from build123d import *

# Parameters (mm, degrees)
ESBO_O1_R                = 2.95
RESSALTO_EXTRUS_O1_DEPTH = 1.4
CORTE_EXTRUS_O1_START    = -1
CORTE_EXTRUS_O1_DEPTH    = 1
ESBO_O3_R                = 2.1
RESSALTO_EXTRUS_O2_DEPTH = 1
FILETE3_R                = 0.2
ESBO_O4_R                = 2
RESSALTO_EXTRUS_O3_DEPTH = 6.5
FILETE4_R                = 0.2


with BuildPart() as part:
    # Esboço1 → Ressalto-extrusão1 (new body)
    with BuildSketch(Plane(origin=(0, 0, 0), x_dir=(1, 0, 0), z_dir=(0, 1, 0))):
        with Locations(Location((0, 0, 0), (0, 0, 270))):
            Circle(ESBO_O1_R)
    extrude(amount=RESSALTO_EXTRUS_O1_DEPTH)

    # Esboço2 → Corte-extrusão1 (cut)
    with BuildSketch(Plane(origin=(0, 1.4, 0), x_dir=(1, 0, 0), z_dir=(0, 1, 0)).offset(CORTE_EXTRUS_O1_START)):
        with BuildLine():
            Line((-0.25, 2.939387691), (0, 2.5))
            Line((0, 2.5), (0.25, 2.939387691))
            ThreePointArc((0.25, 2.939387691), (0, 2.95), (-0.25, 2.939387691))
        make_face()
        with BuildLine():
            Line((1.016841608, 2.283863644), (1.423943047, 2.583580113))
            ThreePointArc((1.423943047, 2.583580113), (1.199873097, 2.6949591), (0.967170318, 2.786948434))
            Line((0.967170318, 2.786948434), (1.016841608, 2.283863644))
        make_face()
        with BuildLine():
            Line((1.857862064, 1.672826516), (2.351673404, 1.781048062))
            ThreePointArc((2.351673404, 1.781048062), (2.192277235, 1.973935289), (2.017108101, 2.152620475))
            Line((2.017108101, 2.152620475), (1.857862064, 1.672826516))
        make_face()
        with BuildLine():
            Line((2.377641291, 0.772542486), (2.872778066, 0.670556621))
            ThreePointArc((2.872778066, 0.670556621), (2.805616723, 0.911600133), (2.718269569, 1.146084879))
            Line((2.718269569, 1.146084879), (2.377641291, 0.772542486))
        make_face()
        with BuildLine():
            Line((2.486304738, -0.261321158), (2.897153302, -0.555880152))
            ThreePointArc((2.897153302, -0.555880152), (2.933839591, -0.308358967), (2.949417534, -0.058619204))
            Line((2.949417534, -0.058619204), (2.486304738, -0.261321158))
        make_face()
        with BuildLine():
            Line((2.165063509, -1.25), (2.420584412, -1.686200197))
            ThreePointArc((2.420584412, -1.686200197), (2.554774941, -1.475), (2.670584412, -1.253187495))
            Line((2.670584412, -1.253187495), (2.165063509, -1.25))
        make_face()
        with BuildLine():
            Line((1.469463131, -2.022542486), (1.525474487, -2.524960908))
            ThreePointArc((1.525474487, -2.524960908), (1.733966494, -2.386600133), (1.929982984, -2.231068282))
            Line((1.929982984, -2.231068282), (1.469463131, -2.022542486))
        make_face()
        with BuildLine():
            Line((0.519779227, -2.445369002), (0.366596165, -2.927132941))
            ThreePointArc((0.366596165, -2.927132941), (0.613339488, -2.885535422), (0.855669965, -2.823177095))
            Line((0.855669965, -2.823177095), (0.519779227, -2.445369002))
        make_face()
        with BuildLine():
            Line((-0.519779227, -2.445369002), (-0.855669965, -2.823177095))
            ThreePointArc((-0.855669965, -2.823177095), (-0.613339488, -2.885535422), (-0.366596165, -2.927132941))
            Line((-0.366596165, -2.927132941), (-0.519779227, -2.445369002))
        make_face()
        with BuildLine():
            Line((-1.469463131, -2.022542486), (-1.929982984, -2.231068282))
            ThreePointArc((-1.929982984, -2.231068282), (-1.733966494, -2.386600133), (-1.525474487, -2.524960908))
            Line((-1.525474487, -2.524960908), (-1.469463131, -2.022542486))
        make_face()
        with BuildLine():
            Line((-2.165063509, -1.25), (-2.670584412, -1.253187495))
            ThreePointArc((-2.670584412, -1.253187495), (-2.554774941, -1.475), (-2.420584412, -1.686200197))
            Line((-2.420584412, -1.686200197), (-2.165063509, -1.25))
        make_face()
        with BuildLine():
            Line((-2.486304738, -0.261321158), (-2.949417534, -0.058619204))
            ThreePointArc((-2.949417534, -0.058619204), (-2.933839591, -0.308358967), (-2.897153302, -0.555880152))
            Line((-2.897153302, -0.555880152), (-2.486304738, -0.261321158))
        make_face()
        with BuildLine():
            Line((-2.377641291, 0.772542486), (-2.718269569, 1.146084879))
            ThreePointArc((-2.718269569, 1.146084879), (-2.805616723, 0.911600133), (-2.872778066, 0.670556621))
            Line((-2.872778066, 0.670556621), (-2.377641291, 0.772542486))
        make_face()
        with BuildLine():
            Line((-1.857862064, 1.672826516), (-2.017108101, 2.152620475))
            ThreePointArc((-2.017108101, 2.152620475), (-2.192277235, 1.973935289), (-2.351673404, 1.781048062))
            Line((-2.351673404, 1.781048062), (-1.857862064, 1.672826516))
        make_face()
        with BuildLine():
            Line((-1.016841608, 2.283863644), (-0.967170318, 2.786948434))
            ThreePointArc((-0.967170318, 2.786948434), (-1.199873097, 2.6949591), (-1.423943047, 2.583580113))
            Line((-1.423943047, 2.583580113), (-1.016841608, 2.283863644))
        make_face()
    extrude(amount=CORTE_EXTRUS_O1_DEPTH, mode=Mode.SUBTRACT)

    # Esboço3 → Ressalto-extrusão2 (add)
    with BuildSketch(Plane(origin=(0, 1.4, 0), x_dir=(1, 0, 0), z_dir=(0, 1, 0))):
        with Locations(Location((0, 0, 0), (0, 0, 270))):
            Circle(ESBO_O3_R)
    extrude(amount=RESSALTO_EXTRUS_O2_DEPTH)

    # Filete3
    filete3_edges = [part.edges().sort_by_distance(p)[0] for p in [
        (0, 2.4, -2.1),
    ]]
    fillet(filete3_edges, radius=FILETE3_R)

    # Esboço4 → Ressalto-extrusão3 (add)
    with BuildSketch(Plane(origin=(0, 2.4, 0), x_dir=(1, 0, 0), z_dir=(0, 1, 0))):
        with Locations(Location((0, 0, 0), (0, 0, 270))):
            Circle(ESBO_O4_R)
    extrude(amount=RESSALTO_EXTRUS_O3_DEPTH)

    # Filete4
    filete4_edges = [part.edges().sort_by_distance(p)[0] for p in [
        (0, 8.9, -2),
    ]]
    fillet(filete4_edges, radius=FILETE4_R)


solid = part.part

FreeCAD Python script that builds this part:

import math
import FreeCAD as App
import Part
import Sketcher
from FreeCAD import Vector


def edges_at(feature, points):
    """Names of the edges that pass closest to the given points."""
    edges = feature.Shape.Edges
    near = lambda p: min(range(len(edges)), key=lambda i: edges[i].distToShape(Part.Vertex(*p))[0])
    return sorted({f"Edge{near(p) + 1}" for p in points})

doc = App.newDocument("Part")
body = doc.addObject("PartDesign::Body", "Body")

# Sketch on XZ plane
sketch1 = body.newObject("Sketcher::SketchObject", "Sketch")
sketch1.AttachmentSupport = (doc.getObject("XZ_Plane"), [""])
sketch1.MapMode = "FlatFace"
sketch1.addGeometry(Part.Circle(Vector(0, 0, 0), Vector(0, 0, 1), 3), False)
sketch1.addConstraint([
    Sketcher.Constraint("Coincident", 0, 3, -1, 1),
    Sketcher.Constraint("Diameter", 0, 5.9),
])
pad1 = body.newObject("PartDesign::Pad", "Pad")
pad1.Profile = sketch1
pad1.Length = 1.4
pad1.Reversed = True

# Sketch on XZ plane
sketch2 = body.newObject("Sketcher::SketchObject", "Sketch001")
sketch2.AttachmentSupport = (doc.getObject("XZ_Plane"), [""])
sketch2.MapMode = "FlatFace"
sketch2.AttachmentOffset = App.Placement(Vector(0, 0, -0.4), App.Rotation())
sketch2.addGeometry([
    Part.LineSegment(Vector(-0.25, -2.94, 0), Vector(0, -2.5, 0)),  # 0
    Part.LineSegment(Vector(0, -2.5, 0), Vector(0.25, -2.94, 0)),  # 1
    Part.ArcOfCircle(Part.Circle(Vector(0, 0, 0), Vector(0, 0, 1), 2.95), math.radians(-94.86), math.radians(-85.14)),  # 2
    Part.LineSegment(Vector(1.02, -2.28, 0), Vector(1.42, -2.58, 0)),  # 3
    Part.ArcOfCircle(Part.Circle(Vector(0, 0, 0), Vector(0, 0, 1), 2.95), math.radians(-70.86), math.radians(-61.14)),  # 4
    Part.LineSegment(Vector(0.97, -2.79, 0), Vector(1.02, -2.28, 0)),  # 5
    Part.LineSegment(Vector(1.86, -1.67, 0), Vector(2.35, -1.78, 0)),  # 6
    Part.ArcOfCircle(Part.Circle(Vector(0, 0, 0), Vector(0, 0, 1), 2.95), math.radians(-46.86), math.radians(-37.14)),  # 7
    Part.LineSegment(Vector(2.02, -2.15, 0), Vector(1.86, -1.67, 0)),  # 8
    Part.LineSegment(Vector(2.38, -0.77, 0), Vector(2.87, -0.67, 0)),  # 9
    Part.ArcOfCircle(Part.Circle(Vector(0, 0, 0), Vector(0, 0, 1), 2.95), math.radians(-22.86), math.radians(-13.14)),  # 10
    Part.LineSegment(Vector(2.72, -1.15, 0), Vector(2.38, -0.77, 0)),  # 11
    Part.LineSegment(Vector(2.49, 0.26, 0), Vector(2.9, 0.56, 0)),  # 12
    Part.ArcOfCircle(Part.Circle(Vector(0, 0, 0), Vector(0, 0, 1), 2.95), math.radians(1.14), math.radians(10.86)),  # 13
    Part.LineSegment(Vector(2.95, 0.06, 0), Vector(2.49, 0.26, 0)),  # 14
    Part.LineSegment(Vector(2.17, 1.25, 0), Vector(2.42, 1.69, 0)),  # 15
    Part.ArcOfCircle(Part.Circle(Vector(0, 0, 0), Vector(0, 0, 1), 2.95), math.radians(25.14), math.radians(34.86)),  # 16
    Part.LineSegment(Vector(2.67, 1.25, 0), Vector(2.17, 1.25, 0)),  # 17
    Part.LineSegment(Vector(1.47, 2.02, 0), Vector(1.53, 2.52, 0)),  # 18
    Part.ArcOfCircle(Part.Circle(Vector(0, 0, 0), Vector(0, 0, 1), 2.95), math.radians(49.14), math.radians(58.86)),  # 19
    Part.LineSegment(Vector(1.93, 2.23, 0), Vector(1.47, 2.02, 0)),  # 20
    Part.LineSegment(Vector(0.52, 2.45, 0), Vector(0.37, 2.93, 0)),  # 21
    Part.ArcOfCircle(Part.Circle(Vector(0, 0, 0), Vector(0, 0, 1), 2.95), math.radians(73.14), math.radians(82.86)),  # 22
    Part.LineSegment(Vector(0.86, 2.82, 0), Vector(0.52, 2.45, 0)),  # 23
    Part.LineSegment(Vector(-0.52, 2.45, 0), Vector(-0.86, 2.82, 0)),  # 24
    Part.ArcOfCircle(Part.Circle(Vector(0, 0, 0), Vector(0, 0, 1), 2.95), math.radians(97.14), math.radians(106.86)),  # 25
    Part.LineSegment(Vector(-0.37, 2.93, 0), Vector(-0.52, 2.45, 0)),  # 26
    Part.LineSegment(Vector(-1.47, 2.02, 0), Vector(-1.93, 2.23, 0)),  # 27
    Part.ArcOfCircle(Part.Circle(Vector(0, 0, 0), Vector(0, 0, 1), 2.95), math.radians(121.14), math.radians(130.86)),  # 28
    Part.LineSegment(Vector(-1.53, 2.52, 0), Vector(-1.47, 2.02, 0)),  # 29
    Part.LineSegment(Vector(-2.17, 1.25, 0), Vector(-2.67, 1.25, 0)),  # 30
    Part.ArcOfCircle(Part.Circle(Vector(0, 0, 0), Vector(0, 0, 1), 2.95), math.radians(145.14), math.radians(154.86)),  # 31
    Part.LineSegment(Vector(-2.42, 1.69, 0), Vector(-2.17, 1.25, 0)),  # 32
    Part.LineSegment(Vector(-2.49, 0.26, 0), Vector(-2.95, 0.06, 0)),  # 33
    Part.ArcOfCircle(Part.Circle(Vector(0, 0, 0), Vector(0, 0, 1), 2.95), math.radians(169.14), math.radians(178.86)),  # 34
    Part.LineSegment(Vector(-2.9, 0.56, 0), Vector(-2.49, 0.26, 0)),  # 35
    Part.LineSegment(Vector(-2.38, -0.77, 0), Vector(-2.72, -1.15, 0)),  # 36
    Part.ArcOfCircle(Part.Circle(Vector(0, 0, 0), Vector(0, 0, 1), 2.95), math.radians(-166.86), math.radians(-157.14)),  # 37
    Part.LineSegment(Vector(-2.87, -0.67, 0), Vector(-2.38, -0.77, 0)),  # 38
    Part.LineSegment(Vector(-1.86, -1.67, 0), Vector(-2.02, -2.15, 0)),  # 39
    Part.ArcOfCircle(Part.Circle(Vector(0, 0, 0), Vector(0, 0, 1), 2.95), math.radians(-142.86), math.radians(-133.14)),  # 40
    Part.LineSegment(Vector(-2.35, -1.78, 0), Vector(-1.86, -1.67, 0)),  # 41
    Part.LineSegment(Vector(-1.02, -2.28, 0), Vector(-0.97, -2.79, 0)),  # 42
    Part.ArcOfCircle(Part.Circle(Vector(0, 0, 0), Vector(0, 0, 1), 2.95), math.radians(-118.86), math.radians(-109.14)),  # 43
    Part.LineSegment(Vector(-1.42, -2.58, 0), Vector(-1.02, -2.28, 0)),  # 44
], False)
sketch2.addConstraint([
    Sketcher.Constraint("Coincident", 0, 2, 1, 1),
    Sketcher.Constraint("Coincident", 1, 2, 2, 2),
    Sketcher.Constraint("Coincident", 2, 1, 0, 1),
    Sketcher.Constraint("Coincident", 3, 2, 4, 2),
    Sketcher.Constraint("Coincident", 4, 1, 5, 1),
    Sketcher.Constraint("Coincident", 5, 2, 3, 1),
    Sketcher.Constraint("Coincident", 6, 2, 7, 2),
    Sketcher.Constraint("Coincident", 7, 1, 8, 1),
    Sketcher.Constraint("Coincident", 8, 2, 6, 1),
    Sketcher.Constraint("Coincident", 9, 2, 10, 2),
    Sketcher.Constraint("Coincident", 10, 1, 11, 1),
    Sketcher.Constraint("Coincident", 11, 2, 9, 1),
    Sketcher.Constraint("Coincident", 12, 2, 13, 2),
    Sketcher.Constraint("Coincident", 13, 1, 14, 1),
    Sketcher.Constraint("Coincident", 14, 2, 12, 1),
    Sketcher.Constraint("Coincident", 15, 2, 16, 2),
    Sketcher.Constraint("Coincident", 16, 1, 17, 1),
    Sketcher.Constraint("Coincident", 17, 2, 15, 1),
    Sketcher.Constraint("Coincident", 18, 2, 19, 2),
    Sketcher.Constraint("Coincident", 19, 1, 20, 1),
    Sketcher.Constraint("Coincident", 20, 2, 18, 1),
    Sketcher.Constraint("Coincident", 21, 2, 22, 2),
    Sketcher.Constraint("Coincident", 22, 1, 23, 1),
    Sketcher.Constraint("Coincident", 23, 2, 21, 1),
    Sketcher.Constraint("Coincident", 24, 2, 25, 2),
    Sketcher.Constraint("Coincident", 25, 1, 26, 1),
    Sketcher.Constraint("Coincident", 26, 2, 24, 1),
    Sketcher.Constraint("Coincident", 27, 2, 28, 2),
    Sketcher.Constraint("Coincident", 28, 1, 29, 1),
    Sketcher.Constraint("Coincident", 29, 2, 27, 1),
    Sketcher.Constraint("Coincident", 30, 2, 31, 2),
    Sketcher.Constraint("Coincident", 31, 1, 32, 1),
    Sketcher.Constraint("Coincident", 32, 2, 30, 1),
    Sketcher.Constraint("Coincident", 33, 2, 34, 2),
    Sketcher.Constraint("Coincident", 34, 1, 35, 1),
    Sketcher.Constraint("Coincident", 35, 2, 33, 1),
    Sketcher.Constraint("Coincident", 36, 2, 37, 2),
    Sketcher.Constraint("Coincident", 37, 1, 38, 1),
    Sketcher.Constraint("Coincident", 38, 2, 36, 1),
    Sketcher.Constraint("Coincident", 39, 2, 40, 2),
    Sketcher.Constraint("Coincident", 40, 1, 41, 1),
    Sketcher.Constraint("Coincident", 41, 2, 39, 1),
    Sketcher.Constraint("Coincident", 42, 2, 43, 2),
    Sketcher.Constraint("Coincident", 43, 1, 44, 1),
    Sketcher.Constraint("Coincident", 44, 2, 42, 1),
    Sketcher.Constraint("Coincident", 2, 3, -1, 1),
    Sketcher.Constraint("Coincident", 4, 3, -1, 1),
    Sketcher.Constraint("Coincident", 7, 3, -1, 1),
    Sketcher.Constraint("Coincident", 10, 3, -1, 1),
    Sketcher.Constraint("Coincident", 13, 3, -1, 1),
    Sketcher.Constraint("Coincident", 16, 3, -1, 1),
    Sketcher.Constraint("Coincident", 19, 3, -1, 1),
    Sketcher.Constraint("Coincident", 22, 3, -1, 1),
    Sketcher.Constraint("Coincident", 25, 3, -1, 1),
    Sketcher.Constraint("Coincident", 28, 3, -1, 1),
    Sketcher.Constraint("Coincident", 31, 3, -1, 1),
    Sketcher.Constraint("Coincident", 34, 3, -1, 1),
    Sketcher.Constraint("Coincident", 37, 3, -1, 1),
    Sketcher.Constraint("Coincident", 40, 3, -1, 1),
    Sketcher.Constraint("Coincident", 43, 3, -1, 1),
    Sketcher.Constraint("Equal", 2, 4),
    Sketcher.Constraint("Equal", 4, 7),
    Sketcher.Constraint("Equal", 7, 10),
    Sketcher.Constraint("Equal", 10, 13),
    Sketcher.Constraint("Equal", 13, 16),
    Sketcher.Constraint("Equal", 16, 19),
    Sketcher.Constraint("Equal", 19, 22),
    Sketcher.Constraint("Equal", 22, 25),
    Sketcher.Constraint("Equal", 25, 28),
    Sketcher.Constraint("Equal", 28, 31),
    Sketcher.Constraint("Equal", 31, 34),
    Sketcher.Constraint("Equal", 34, 37),
    Sketcher.Constraint("Equal", 37, 40),
    Sketcher.Constraint("Equal", 40, 43),
    Sketcher.Constraint("Symmetric", 23, 2, 26, 2, -2),
    Sketcher.Constraint("Symmetric", 20, 2, 29, 2, -2),
    Sketcher.Constraint("Symmetric", 17, 2, 32, 2, -2),
    Sketcher.Constraint("Symmetric", 14, 2, 35, 2, -2),
    Sketcher.Constraint("Symmetric", 11, 2, 38, 2, -2),
    Sketcher.Constraint("Symmetric", 8, 2, 41, 2, -2),
    Sketcher.Constraint("Symmetric", 5, 2, 44, 2, -2),
    Sketcher.Constraint("PointOnObject", 0, 2, -2),
    Sketcher.Constraint("Horizontal", 1, 2, 2, 1),
    Sketcher.Constraint("Horizontal", 22, 1, 24, 2),
    Sketcher.Constraint("Horizontal", 21, 2, 25, 1),
    Sketcher.Constraint("Horizontal", 19, 1, 27, 2),
    Sketcher.Constraint("Horizontal", 18, 2, 28, 1),
    Sketcher.Constraint("Horizontal", 16, 1, 30, 2),
    Sketcher.Constraint("Horizontal", 15, 2, 31, 1),
    Sketcher.Constraint("Horizontal", 13, 1, 33, 2),
    Sketcher.Constraint("Horizontal", 12, 2, 34, 1),
    Sketcher.Constraint("Horizontal", 10, 1, 36, 2),
    Sketcher.Constraint("Horizontal", 9, 2, 37, 1),
    Sketcher.Constraint("Horizontal", 7, 1, 39, 2),
    Sketcher.Constraint("Horizontal", 6, 2, 40, 1),
    Sketcher.Constraint("Horizontal", 4, 1, 42, 2),
    Sketcher.Constraint("Horizontal", 3, 2, 43, 1),
    Sketcher.Constraint("Equal", 1, 3),
    Sketcher.Constraint("Equal", 3, 5),
    Sketcher.Constraint("Equal", 5, 6),
    Sketcher.Constraint("Equal", 6, 8),
    Sketcher.Constraint("Equal", 8, 9),
    Sketcher.Constraint("Equal", 9, 11),
    Sketcher.Constraint("Equal", 11, 12),
    Sketcher.Constraint("Equal", 12, 14),
    Sketcher.Constraint("Equal", 14, 15),
    Sketcher.Constraint("Equal", 15, 17),
    Sketcher.Constraint("Equal", 17, 18),
    Sketcher.Constraint("Equal", 18, 20),
    Sketcher.Constraint("Equal", 20, 21),
    Sketcher.Constraint("Equal", 21, 23),
    Sketcher.Constraint("Radius", 2, 2.95),
    Sketcher.Constraint("DistanceY", 0, 2, -1, 1, 2.5),
    Sketcher.Constraint("DistanceX", 2, 1, 1, 2, 0.5),
    Sketcher.Constraint("DistanceY", -1, 1, 17, 2, 1.25),
    Sketcher.Constraint("DistanceX", 15, 2, 16, 1, 0.25),
    Sketcher.Constraint("DistanceX", 5, 2, 3, 2, 0.407101),
    Sketcher.Constraint("DistanceY", 4, 1, 6, 2, 1.0059),
    Sketcher.Constraint("DistanceY", 13, 1, 14, 2, 0.202702),
    Sketcher.Constraint("DistanceX", 19, 1, 15, 2, 0.490601),
    Sketcher.Constraint("DistanceX", 20, 2, 17, 2, 0.6956),
    Sketcher.Constraint("DistanceY", 19, 1, 23, 2, 0.214301),
    Sketcher.Constraint("DistanceY", 3, 2, -1, 1, 2.58358),
    Sketcher.Constraint("DistanceX", -1, 1, 7, 1, 2.017108),
    Sketcher.Constraint("DistanceX", -1, 1, 9, 2, 2.872778),
    Sketcher.Constraint("DistanceX", -1, 1, 10, 1, 2.71827),
    Sketcher.Constraint("DistanceY", -1, 1, 12, 2, 0.55588),
    Sketcher.Constraint("DistanceX", -1, 1, 22, 1, 0.85567),
])
pocket1 = body.newObject("PartDesign::Pocket", "Pocket")
pocket1.Profile = sketch2
pocket1.Length = 1

# Sketch on XZ plane
sketch3 = body.newObject("Sketcher::SketchObject", "Sketch002")
sketch3.AttachmentSupport = (doc.getObject("XZ_Plane"), [""])
sketch3.MapMode = "FlatFace"
sketch3.AttachmentOffset = App.Placement(Vector(0, 0, -1.4), App.Rotation())
sketch3.addGeometry(Part.Circle(Vector(0, 0, 0), Vector(0, 0, 1), 2.1), False)
sketch3.addConstraint([
    Sketcher.Constraint("Coincident", 0, 3, -1, 1),
    Sketcher.Constraint("Diameter", 0, 4.2),
])
pad2 = body.newObject("PartDesign::Pad", "Pad001")
pad2.Profile = sketch3
pad2.Length = 1
pad2.Reversed = True
doc.recompute()

fillet = body.newObject("PartDesign::Fillet", "Fillet")
fillet.Base = (pad2, edges_at(pad2, [(0, 2.4, -2.1)]))
fillet.Radius = 0.2

# Sketch on XZ plane
sketch4 = body.newObject("Sketcher::SketchObject", "Sketch003")
sketch4.AttachmentSupport = (doc.getObject("XZ_Plane"), [""])
sketch4.MapMode = "FlatFace"
sketch4.AttachmentOffset = App.Placement(Vector(0, 0, -2.4), App.Rotation())
sketch4.addGeometry(Part.Circle(Vector(0, 0, 0), Vector(0, 0, 1), 2), False)
sketch4.addConstraint([
    Sketcher.Constraint("Coincident", 0, 3, -1, 1),
    Sketcher.Constraint("Diameter", 0, 4.0),
])
pad3 = body.newObject("PartDesign::Pad", "Pad002")
pad3.Profile = sketch4
pad3.Length = 6.5
pad3.Reversed = True
doc.recompute()

fillet2 = body.newObject("PartDesign::Fillet", "Fillet001")
fillet2.Base = (pad3, edges_at(pad3, [(0, 8.9, -2)]))
fillet2.Radius = 0.2

doc.recompute()
